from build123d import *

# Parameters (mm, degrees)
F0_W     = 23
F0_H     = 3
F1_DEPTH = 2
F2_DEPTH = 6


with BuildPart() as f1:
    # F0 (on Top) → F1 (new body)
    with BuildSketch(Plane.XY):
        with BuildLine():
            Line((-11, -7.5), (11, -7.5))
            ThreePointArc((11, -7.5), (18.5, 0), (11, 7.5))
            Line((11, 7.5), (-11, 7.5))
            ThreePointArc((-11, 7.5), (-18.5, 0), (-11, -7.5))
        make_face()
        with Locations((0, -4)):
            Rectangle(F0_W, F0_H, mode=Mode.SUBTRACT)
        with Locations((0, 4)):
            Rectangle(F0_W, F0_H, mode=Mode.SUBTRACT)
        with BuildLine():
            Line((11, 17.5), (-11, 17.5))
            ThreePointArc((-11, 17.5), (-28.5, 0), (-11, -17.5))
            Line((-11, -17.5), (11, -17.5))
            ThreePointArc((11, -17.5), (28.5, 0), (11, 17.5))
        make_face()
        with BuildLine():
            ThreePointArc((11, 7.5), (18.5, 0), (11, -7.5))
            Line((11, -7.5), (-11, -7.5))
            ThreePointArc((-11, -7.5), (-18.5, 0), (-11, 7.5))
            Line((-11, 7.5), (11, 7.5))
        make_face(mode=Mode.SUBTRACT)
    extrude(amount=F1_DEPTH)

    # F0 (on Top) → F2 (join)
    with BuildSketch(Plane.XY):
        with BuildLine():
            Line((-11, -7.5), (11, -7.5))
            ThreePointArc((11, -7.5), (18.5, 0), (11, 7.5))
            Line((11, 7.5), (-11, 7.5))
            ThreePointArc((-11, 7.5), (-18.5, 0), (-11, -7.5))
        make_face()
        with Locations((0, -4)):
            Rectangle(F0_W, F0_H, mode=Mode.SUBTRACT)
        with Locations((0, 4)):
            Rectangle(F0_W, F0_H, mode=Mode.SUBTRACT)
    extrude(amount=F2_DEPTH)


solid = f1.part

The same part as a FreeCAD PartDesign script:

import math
import FreeCAD as App
import Part
import Sketcher
Q = App.Units.Quantity


def add_polygon(sketch, points):
    """Adds a closed chain of lines whose ends are joined by coincident constraints."""
    first, n = sketch.GeometryCount, len(points)
    for a, b in zip(points, points[1:] + points[:1]):
        sketch.addGeometry(Part.LineSegment(App.Vector(*a, 0), App.Vector(*b, 0)), False)
    for i in range(n):
        sketch.addConstraint(Sketcher.Constraint("Coincident", first + i, 2, first + (i + 1) % n, 1))

doc = App.newDocument("Part")
body = doc.addObject("PartDesign::Body", "Body")

sketch1 = doc.addObject("Sketcher::SketchObject", "Sketch")
body.addObject(sketch1)
sketch1.AttachmentSupport = (doc.XY_Plane, [""])
sketch1.MapMode = "FlatFace"
sketch1.addGeometry([
    Part.LineSegment(App.Vector(11, 17.5, 0), App.Vector(-11, 17.5, 0)),
    Part.ArcOfCircle(Part.Circle(App.Vector(-11, 0, 0), App.Vector(0, 0, 1), 17.5), math.radians(90), math.radians(270)),
    Part.LineSegment(App.Vector(-11, -17.5, 0), App.Vector(11, -17.5, 0)),
    Part.ArcOfCircle(Part.Circle(App.Vector(11, 0, 0), App.Vector(0, 0, 1), 17.5), math.radians(-90), math.radians(90)),
    Part.LineSegment(App.Vector(-11, 7.5, 0), App.Vector(11, 7.5, 0)),
    Part.ArcOfCircle(Part.Circle(App.Vector(11, 0, 0), App.Vector(0, 0, 1), 7.5), math.radians(-90), math.radians(90)),
    Part.LineSegment(App.Vector(11, -7.5, 0), App.Vector(-11, -7.5, 0)),
    Part.ArcOfCircle(Part.Circle(App.Vector(-11, 0, 0), App.Vector(0, 0, 1), 7.5), math.radians(90), math.radians(270)),
], False)
sketch1.addConstraint([
    Sketcher.Constraint("Tangent", 0, 2, 1, 1),
    Sketcher.Constraint("Tangent", 1, 2, 2, 1),
    Sketcher.Constraint("Tangent", 2, 2, 3, 1),
    Sketcher.Constraint("Tangent", 3, 2, 0, 1),
    Sketcher.Constraint("Tangent", 4, 2, 5, 2),
    Sketcher.Constraint("Tangent", 5, 1, 6, 1),
    Sketcher.Constraint("Tangent", 6, 2, 7, 2),
    Sketcher.Constraint("Tangent", 7, 1, 4, 1),
    Sketcher.Constraint("Horizontal", 0),
    Sketcher.Constraint("Horizontal", 2),
    Sketcher.Constraint("Horizontal", 4),
    Sketcher.Constraint("Horizontal", 6),
    Sketcher.Constraint("Coincident", 5, 3, 3, 3),
    Sketcher.Constraint("Symmetric", 1, 3, 3, 3, -1, 1),
    Sketcher.Constraint("Vertical", 7, 3, 0, 2),
    Sketcher.Constraint("Radius", 1, Q("17.5 mm")),
    Sketcher.Constraint("Radius", 5, Q("7.5 mm")),
    Sketcher.Constraint("DistanceX", 0, 2, 0, 1, Q("22 mm")),
])
pad1 = doc.addObject("PartDesign::Pad", "Pad")
body.addObject(pad1)
pad1.Profile = sketch1
pad1.Length = 2

sketch2 = doc.addObject("Sketcher::SketchObject", "Sketch001")
body.addObject(sketch2)
sketch2.AttachmentSupport = (doc.XY_Plane, [""])
sketch2.MapMode = "FlatFace"
sketch2.addGeometry(Part.LineSegment(App.Vector(-11, -7.5, 0), App.Vector(11, -7.5, 0)), False)
sketch2.addGeometry(Part.ArcOfCircle(Part.Circle(App.Vector(11, 0, 0), App.Vector(0, 0, 1), 7.5), math.radians(-90), math.radians(90)), False)
sketch2.addGeometry(Part.LineSegment(App.Vector(11, 7.5, 0), App.Vector(-11, 7.5, 0)), False)
sketch2.addGeometry(Part.ArcOfCircle(Part.Circle(App.Vector(-11, 0, 0), App.Vector(0, 0, 1), 7.5), math.radians(90), math.radians(270)), False)
add_polygon(sketch2, [(11.5, -5.5), (-11.5, -5.5), (-11.5, -2.5), (11.5, -2.5)])
add_polygon(sketch2, [(11.5, 2.5), (-11.5, 2.5), (-11.5, 5.5), (11.5, 5.5)])
sketch2.addConstraint([
    Sketcher.Constraint("Tangent", 0, 2, 1, 1),
    Sketcher.Constraint("Tangent", 1, 2, 2, 1),
    Sketcher.Constraint("Tangent", 2, 2, 3, 1),
    Sketcher.Constraint("Tangent", 3, 2, 0, 1),
    Sketcher.Constraint("Horizontal", 0),
    Sketcher.Constraint("Horizontal", 2),
    Sketcher.Constraint("Horizontal", 4),
    Sketcher.Constraint("Vertical", 5),
    Sketcher.Constraint("Horizontal", 6),
    Sketcher.Constraint("Vertical", 7),
    Sketcher.Constraint("Horizontal", 8),
    Sketcher.Constraint("Vertical", 9),
    Sketcher.Constraint("Horizontal", 10),
    Sketcher.Constraint("Vertical", 11),
    Sketcher.Constraint("Symmetric", 1, 3, 3, 3, -1, 1),
    Sketcher.Constraint("Symmetric", 6, 2, 8, 2, -1, 1),
    Sketcher.Constraint("Symmetric", 4, 2, 10, 2, -1, 1),
    Sketcher.Constraint("Vertical", 5, 2, 8, 2),
    Sketcher.Constraint("Radius", 1, Q("7.5 mm")),
    Sketcher.Constraint("DistanceX", 0, 1, 0, 2, Q("22 mm")),
    Sketcher.Constraint("DistanceX", 4, 2, 4, 1, Q("23 mm")),
    Sketcher.Constraint("DistanceY", 5, 1, 5, 2, Q("3 mm")),
    Sketcher.Constraint("DistanceY", 3, 2, 4, 2, Q("2 mm")),
])
pad2 = doc.addObject("PartDesign::Pad", "Pad001")
body.addObject(pad2)
pad2.Profile = sketch2
pad2.Length = 6

doc.recompute()
